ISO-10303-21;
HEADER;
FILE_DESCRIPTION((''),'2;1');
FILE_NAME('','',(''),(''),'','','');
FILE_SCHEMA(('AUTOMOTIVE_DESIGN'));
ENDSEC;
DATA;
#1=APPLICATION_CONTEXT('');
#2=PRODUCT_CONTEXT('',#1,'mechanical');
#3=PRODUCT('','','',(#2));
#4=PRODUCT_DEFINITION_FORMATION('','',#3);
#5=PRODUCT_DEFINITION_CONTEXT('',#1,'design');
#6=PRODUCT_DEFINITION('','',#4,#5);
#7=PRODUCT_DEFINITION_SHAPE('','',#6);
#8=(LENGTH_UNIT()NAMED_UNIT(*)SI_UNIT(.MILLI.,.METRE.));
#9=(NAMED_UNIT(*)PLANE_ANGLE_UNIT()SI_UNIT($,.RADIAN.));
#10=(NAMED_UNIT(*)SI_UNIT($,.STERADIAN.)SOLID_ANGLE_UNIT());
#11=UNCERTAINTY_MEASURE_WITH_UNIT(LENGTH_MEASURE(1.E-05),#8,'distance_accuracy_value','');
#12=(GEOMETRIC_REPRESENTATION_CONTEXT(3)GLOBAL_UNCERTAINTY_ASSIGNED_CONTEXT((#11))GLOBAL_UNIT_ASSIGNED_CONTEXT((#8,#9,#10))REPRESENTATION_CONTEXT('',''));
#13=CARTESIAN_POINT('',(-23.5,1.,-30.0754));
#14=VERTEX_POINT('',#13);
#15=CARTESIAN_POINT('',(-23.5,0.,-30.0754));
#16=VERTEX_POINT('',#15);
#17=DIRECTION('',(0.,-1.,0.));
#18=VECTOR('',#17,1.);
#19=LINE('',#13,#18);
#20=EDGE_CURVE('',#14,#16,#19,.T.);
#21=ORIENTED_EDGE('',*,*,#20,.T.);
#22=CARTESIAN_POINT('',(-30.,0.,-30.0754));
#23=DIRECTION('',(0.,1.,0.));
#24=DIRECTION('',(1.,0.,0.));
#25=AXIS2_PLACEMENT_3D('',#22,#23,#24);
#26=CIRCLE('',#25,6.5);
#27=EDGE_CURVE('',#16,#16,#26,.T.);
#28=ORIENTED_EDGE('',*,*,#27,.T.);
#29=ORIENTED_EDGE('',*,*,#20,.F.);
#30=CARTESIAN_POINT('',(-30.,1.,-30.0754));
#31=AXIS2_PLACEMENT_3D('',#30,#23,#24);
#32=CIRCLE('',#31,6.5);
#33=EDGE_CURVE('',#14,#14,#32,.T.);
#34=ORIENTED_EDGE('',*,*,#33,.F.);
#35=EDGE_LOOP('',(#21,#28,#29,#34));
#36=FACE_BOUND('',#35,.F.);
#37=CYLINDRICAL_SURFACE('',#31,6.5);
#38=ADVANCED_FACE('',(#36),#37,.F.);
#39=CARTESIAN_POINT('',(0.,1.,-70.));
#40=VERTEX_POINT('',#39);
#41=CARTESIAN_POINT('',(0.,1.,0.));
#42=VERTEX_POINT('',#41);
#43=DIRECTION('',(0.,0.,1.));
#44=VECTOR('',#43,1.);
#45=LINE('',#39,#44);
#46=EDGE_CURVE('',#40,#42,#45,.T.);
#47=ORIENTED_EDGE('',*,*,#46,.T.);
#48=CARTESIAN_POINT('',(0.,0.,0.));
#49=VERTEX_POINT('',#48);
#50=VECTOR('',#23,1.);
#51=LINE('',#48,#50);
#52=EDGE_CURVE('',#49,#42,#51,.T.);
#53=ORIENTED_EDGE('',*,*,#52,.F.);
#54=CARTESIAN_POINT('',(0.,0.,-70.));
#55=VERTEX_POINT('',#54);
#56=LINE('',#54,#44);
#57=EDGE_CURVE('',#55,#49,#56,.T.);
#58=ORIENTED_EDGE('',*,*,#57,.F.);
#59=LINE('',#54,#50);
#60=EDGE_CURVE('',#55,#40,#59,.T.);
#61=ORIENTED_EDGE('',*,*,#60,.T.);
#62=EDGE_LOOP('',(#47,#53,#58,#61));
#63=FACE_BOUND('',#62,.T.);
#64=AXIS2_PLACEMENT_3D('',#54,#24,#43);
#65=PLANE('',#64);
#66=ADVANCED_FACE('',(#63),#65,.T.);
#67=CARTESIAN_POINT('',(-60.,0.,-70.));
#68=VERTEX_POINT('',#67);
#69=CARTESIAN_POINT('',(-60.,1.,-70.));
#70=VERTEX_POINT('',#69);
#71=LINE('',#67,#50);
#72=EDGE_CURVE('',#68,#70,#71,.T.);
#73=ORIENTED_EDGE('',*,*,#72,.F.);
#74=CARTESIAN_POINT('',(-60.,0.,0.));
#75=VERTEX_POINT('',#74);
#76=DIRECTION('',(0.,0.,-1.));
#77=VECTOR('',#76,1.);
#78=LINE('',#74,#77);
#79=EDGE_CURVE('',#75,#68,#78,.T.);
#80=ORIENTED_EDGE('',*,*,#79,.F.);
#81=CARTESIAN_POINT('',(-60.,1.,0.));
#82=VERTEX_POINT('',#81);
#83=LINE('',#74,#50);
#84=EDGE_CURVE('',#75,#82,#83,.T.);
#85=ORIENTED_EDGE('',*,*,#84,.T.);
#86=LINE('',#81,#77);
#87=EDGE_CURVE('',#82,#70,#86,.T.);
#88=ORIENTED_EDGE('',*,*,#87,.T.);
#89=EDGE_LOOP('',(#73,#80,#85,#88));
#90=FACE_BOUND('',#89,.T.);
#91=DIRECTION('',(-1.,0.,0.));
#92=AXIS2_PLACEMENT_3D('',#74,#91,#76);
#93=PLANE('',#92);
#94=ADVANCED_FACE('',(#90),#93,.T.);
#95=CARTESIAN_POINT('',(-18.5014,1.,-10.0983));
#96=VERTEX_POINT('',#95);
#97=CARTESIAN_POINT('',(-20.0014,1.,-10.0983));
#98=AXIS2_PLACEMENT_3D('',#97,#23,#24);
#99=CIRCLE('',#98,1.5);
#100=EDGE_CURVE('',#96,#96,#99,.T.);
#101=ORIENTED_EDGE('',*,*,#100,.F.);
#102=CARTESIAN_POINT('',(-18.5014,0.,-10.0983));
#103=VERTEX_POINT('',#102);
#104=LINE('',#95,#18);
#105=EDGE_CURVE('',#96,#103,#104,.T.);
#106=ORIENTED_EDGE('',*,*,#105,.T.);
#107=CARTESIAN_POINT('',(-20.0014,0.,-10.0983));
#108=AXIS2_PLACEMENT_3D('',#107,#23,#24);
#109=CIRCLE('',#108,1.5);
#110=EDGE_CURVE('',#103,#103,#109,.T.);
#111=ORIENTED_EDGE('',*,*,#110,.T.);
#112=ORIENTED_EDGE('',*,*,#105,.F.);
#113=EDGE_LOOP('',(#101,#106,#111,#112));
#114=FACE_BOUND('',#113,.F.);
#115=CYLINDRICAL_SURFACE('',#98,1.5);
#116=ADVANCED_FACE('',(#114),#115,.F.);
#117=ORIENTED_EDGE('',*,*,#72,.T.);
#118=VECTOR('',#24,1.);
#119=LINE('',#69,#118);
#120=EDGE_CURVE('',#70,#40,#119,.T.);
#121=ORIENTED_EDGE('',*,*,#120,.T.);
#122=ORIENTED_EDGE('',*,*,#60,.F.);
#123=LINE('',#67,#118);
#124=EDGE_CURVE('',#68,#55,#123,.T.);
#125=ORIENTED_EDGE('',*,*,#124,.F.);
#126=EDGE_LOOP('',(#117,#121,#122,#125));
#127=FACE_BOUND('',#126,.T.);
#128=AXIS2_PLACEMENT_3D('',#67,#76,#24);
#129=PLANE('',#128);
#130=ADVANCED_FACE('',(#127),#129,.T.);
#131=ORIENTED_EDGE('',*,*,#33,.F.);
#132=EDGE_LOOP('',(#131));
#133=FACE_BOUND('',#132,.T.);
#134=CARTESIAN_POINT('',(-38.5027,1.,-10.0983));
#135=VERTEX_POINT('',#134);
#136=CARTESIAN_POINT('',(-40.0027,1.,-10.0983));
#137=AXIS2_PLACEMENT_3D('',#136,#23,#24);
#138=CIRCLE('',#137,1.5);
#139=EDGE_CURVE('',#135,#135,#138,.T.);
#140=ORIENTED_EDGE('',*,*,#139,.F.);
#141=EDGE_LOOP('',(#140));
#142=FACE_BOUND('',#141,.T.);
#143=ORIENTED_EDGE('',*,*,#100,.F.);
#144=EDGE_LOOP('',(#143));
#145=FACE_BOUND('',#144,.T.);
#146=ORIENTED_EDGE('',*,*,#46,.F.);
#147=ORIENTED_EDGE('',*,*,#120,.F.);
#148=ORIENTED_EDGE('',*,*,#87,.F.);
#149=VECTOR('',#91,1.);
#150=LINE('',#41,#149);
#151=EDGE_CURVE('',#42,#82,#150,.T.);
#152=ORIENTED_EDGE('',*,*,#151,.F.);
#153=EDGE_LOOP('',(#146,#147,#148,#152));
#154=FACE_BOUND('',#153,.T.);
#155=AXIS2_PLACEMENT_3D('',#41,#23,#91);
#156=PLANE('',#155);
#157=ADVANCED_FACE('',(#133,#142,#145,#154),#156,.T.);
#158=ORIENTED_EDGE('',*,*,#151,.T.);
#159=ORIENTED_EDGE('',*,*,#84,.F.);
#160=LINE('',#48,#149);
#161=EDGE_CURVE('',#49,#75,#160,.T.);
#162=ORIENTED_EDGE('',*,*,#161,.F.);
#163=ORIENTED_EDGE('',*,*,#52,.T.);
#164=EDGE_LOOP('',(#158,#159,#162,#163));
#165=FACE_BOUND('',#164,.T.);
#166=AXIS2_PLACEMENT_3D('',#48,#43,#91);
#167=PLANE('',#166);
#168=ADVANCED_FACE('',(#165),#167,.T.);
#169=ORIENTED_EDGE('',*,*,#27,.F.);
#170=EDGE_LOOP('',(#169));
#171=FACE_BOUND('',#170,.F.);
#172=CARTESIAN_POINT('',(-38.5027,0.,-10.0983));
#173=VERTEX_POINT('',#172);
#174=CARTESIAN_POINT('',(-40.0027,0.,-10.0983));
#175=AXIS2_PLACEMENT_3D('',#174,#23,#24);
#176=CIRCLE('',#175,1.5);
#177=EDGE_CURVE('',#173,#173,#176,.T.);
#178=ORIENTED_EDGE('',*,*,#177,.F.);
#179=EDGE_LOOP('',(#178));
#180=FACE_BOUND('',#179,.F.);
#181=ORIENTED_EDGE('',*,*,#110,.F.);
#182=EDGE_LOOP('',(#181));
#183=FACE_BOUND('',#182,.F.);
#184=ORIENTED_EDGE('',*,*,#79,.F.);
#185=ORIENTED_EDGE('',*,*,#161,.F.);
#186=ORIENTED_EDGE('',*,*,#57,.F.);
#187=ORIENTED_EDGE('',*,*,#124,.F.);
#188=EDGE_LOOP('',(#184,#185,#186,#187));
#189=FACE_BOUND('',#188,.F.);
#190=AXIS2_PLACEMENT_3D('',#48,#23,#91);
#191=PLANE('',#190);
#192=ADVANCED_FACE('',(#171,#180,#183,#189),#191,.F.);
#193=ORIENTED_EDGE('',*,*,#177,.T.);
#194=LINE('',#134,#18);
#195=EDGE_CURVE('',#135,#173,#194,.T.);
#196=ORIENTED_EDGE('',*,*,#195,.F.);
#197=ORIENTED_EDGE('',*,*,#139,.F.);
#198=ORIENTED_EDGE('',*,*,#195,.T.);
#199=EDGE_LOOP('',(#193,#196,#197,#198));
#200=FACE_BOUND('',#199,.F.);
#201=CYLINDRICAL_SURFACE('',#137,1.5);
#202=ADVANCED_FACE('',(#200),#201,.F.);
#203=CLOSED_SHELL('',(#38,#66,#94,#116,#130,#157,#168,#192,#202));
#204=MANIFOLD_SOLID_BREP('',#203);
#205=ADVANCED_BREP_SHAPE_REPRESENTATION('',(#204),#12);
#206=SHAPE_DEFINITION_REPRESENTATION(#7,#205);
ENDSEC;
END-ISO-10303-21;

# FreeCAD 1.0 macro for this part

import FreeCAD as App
import Part
import Sketcher
Q = App.Units.Quantity

doc = App.newDocument("Part")
body = doc.addObject("PartDesign::Body", "Body")

# Sketch on XZ plane
sketch1 = doc.addObject("Sketcher::SketchObject", "Sketch")
body.addObject(sketch1)
sketch1.AttachmentSupport = (doc.XZ_Plane, [""])
sketch1.MapMode = "FlatFace"
sketch1.addGeometry([
    Part.LineSegment(App.Vector(-60, 0, 0), App.Vector(0, 0, 0)),
    Part.LineSegment(App.Vector(0, 0, 0), App.Vector(0, -70, 0)),
    Part.LineSegment(App.Vector(0, -70, 0), App.Vector(-60, -70, 0)),
    Part.LineSegment(App.Vector(-60, -70, 0), App.Vector(-60, 0, 0)),
], False)
sketch1.addConstraint([
    Sketcher.Constraint("Coincident", 0, 2, 1, 1),
    Sketcher.Constraint("Coincident", 1, 2, 2, 1),
    Sketcher.Constraint("Coincident", 2, 2, 3, 1),
    Sketcher.Constraint("Coincident", 3, 2, 0, 1),
    Sketcher.Constraint("Horizontal", 0),
    Sketcher.Constraint("Vertical", 1),
    Sketcher.Constraint("Horizontal", 2),
    Sketcher.Constraint("Vertical", 3),
    Sketcher.Constraint("Coincident", 0, 2, -1, 1),
    Sketcher.Constraint("DistanceX", 0, 1, 0, 2, Q("60 mm")),
    Sketcher.Constraint("DistanceY", 1, 2, 1, 1, Q("70 mm")),
])
pad1 = doc.addObject("PartDesign::Pad", "Pad")
body.addObject(pad1)
pad1.Profile = sketch1
pad1.Length = 1
pad1.Reversed = True

# Sketch on XZ plane
sketch2 = doc.addObject("Sketcher::SketchObject", "Sketch001")
body.addObject(sketch2)
sketch2.AttachmentSupport = (doc.XZ_Plane, [""])
sketch2.MapMode = "FlatFace"
sketch2.AttachmentOffset = App.Placement(App.Vector(0, 0, -1), App.Rotation())
sketch2.addGeometry([
    Part.Circle(App.Vector(-40.0027, -10.0983, 0), App.Vector(0, 0, 1), 1.5),
    Part.Circle(App.Vector(-20.0014, -10.0983, 0), App.Vector(0, 0, 1), 1.5),
], False)
sketch2.addConstraint([
    Sketcher.Constraint("Equal", 0, 1),
    Sketcher.Constraint("Horizontal", 0, 3, 1, 3),
    Sketcher.Constraint("Diameter", 0, Q("3 mm")),
    Sketcher.Constraint("DistanceX", 0, 3, -1, 1, Q("40.0027 mm")),
    Sketcher.Constraint("DistanceY", 0, 3, -1, 1, Q("10.0983 mm")),
    Sketcher.Constraint("DistanceX", 1, 3, -1, 1, Q("20.0014 mm")),
])
pocket1 = doc.addObject("PartDesign::Pocket", "Pocket")
body.addObject(pocket1)
pocket1.Profile = sketch2
pocket1.Length = 1
pocket1.Reversed = True

# Sketch on XZ plane
sketch3 = doc.addObject("Sketcher::SketchObject", "Sketch002")
body.addObject(sketch3)
sketch3.AttachmentSupport = (doc.XZ_Plane, [""])
sketch3.MapMode = "FlatFace"
sketch3.AttachmentOffset = App.Placement(App.Vector(0, 0, -1), App.Rotation())
sketch3.addGeometry(Part.Circle(App.Vector(-30, -30.0754, 0), App.Vector(0, 0, 1), 6.5), False)
sketch3.addConstraint([
    Sketcher.Constraint("Diameter", 0, Q("13 mm")),
    Sketcher.Constraint("DistanceX", 0, 3, -1, 1, Q("30 mm")),
    Sketcher.Constraint("DistanceY", 0, 3, -1, 1, Q("30.0754 mm")),
])
pocket2 = doc.addObject("PartDesign::Pocket", "Pocket001")
body.addObject(pocket2)
pocket2.Profile = sketch3
pocket2.Length = 1
pocket2.Reversed = True

doc.recompute()
